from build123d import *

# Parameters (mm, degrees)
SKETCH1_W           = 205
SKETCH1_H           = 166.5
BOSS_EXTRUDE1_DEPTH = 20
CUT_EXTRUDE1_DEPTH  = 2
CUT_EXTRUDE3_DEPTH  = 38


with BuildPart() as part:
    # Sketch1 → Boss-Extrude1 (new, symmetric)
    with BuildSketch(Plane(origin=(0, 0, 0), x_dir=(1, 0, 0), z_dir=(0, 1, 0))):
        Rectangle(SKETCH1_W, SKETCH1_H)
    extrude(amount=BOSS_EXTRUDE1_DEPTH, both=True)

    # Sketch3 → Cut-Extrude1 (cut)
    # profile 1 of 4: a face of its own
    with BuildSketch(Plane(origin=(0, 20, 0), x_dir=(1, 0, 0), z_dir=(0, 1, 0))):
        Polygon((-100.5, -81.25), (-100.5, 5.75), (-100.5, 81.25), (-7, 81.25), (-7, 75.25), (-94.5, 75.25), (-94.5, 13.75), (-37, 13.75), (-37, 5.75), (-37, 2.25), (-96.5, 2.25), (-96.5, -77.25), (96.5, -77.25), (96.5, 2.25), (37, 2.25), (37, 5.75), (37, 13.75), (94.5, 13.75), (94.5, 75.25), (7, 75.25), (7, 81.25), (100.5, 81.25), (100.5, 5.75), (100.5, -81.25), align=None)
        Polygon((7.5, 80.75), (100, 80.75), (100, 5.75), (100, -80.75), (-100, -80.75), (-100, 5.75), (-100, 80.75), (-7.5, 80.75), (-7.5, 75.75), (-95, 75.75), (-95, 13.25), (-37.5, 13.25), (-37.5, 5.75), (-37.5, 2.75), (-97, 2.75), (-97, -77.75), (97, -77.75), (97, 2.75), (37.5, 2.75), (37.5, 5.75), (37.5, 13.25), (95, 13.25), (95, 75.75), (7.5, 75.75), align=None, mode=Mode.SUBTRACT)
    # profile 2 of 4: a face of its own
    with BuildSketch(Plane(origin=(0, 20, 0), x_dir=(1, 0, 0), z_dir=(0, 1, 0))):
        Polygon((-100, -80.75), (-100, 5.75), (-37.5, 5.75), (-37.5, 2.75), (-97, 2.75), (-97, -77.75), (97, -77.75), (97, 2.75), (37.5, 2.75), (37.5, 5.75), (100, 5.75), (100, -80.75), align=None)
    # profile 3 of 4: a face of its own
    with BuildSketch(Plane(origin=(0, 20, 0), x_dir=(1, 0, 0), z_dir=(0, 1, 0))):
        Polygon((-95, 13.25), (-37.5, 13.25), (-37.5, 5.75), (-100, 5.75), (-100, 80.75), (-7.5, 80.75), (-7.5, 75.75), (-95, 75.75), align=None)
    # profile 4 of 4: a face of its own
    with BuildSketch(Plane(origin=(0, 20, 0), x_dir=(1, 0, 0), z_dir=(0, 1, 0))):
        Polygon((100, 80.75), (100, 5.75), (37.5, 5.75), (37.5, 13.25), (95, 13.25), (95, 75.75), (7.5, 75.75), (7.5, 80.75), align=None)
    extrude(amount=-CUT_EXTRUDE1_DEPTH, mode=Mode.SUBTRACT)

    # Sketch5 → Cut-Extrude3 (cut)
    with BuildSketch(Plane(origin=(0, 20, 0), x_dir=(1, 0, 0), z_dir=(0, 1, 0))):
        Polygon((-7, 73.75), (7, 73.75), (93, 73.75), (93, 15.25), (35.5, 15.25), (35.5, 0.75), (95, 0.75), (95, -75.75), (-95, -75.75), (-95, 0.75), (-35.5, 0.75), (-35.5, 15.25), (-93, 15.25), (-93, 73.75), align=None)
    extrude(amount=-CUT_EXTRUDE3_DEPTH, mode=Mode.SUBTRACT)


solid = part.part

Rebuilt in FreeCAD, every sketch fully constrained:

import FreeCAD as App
import Part
import Sketcher


def add_polygon(sketch, points):
    """Adds a closed chain of lines whose ends are joined by coincident constraints."""
    first, n = sketch.GeometryCount, len(points)
    for a, b in zip(points, points[1:] + points[:1]):
        sketch.addGeometry(Part.LineSegment(App.Vector(*a, 0), App.Vector(*b, 0)), False)
    for i in range(n):
        sketch.addConstraint(Sketcher.Constraint("Coincident", first + i, 2, first + (i + 1) % n, 1))

doc = App.newDocument("Part")
body = doc.addObject("PartDesign::Body", "Body")

# Sketch on XZ plane
sketch1 = body.newObject("Sketcher::SketchObject", "Sketch")
sketch1.AttachmentSupport = (doc.getObject("XZ_Plane"), [""])
sketch1.MapMode = "FlatFace"
add_polygon(sketch1, [(-102, -83), (-102, 83), (102, 83), (102, -83)])  # lines 0-3
sketch1.addConstraint([
    Sketcher.Constraint("Vertical", 0),
    Sketcher.Constraint("Horizontal", 1),
    Sketcher.Constraint("Vertical", 2),
    Sketcher.Constraint("Horizontal", 3),
    Sketcher.Constraint("Symmetric", 0, 2, 2, 2, -1, 1),
    Sketcher.Constraint("DistanceX", 1, 1, 1, 2, 205.0),
    Sketcher.Constraint("DistanceY", 0, 1, 0, 2, 166.5),
])
pad1 = body.newObject("PartDesign::Pad", "Pad")
pad1.Profile = sketch1
pad1.Length = 40
pad1.Midplane = True

# Sketch on XZ plane
sketch2 = body.newObject("Sketcher::SketchObject", "Sketch001")
sketch2.AttachmentSupport = (doc.getObject("XZ_Plane"), [""])
sketch2.MapMode = "FlatFace"
sketch2.AttachmentOffset = App.Placement(App.Vector(0, 0, -20), App.Rotation())
add_polygon(sketch2, [(-100, -81), (-100, 81), (100, 81), (100, -81), (7, -81), (7, -75), (94, -75), (94, -14), (37, -14), (37, -2), (96, -2), (96, 77), (-96, 77), (-96, -2), (-37, -2), (-37, -14), (-94, -14), (-94, -75), (-7, -75), (-7, -81)])  # lines 0-19
sketch2.addConstraint([
    Sketcher.Constraint("Vertical", 0),
    Sketcher.Constraint("Horizontal", 1),
    Sketcher.Constraint("Vertical", 2),
    Sketcher.Constraint("Horizontal", 3),
    Sketcher.Constraint("Vertical", 4),
    Sketcher.Constraint("Horizontal", 5),
    Sketcher.Constraint("Vertical", 6),
    Sketcher.Constraint("Horizontal", 7),
    Sketcher.Constraint("Vertical", 8),
    Sketcher.Constraint("Horizontal", 9),
    Sketcher.Constraint("Vertical", 10),
    Sketcher.Constraint("Horizontal", 11),
    Sketcher.Constraint("Vertical", 12),
    Sketcher.Constraint("Horizontal", 13),
    Sketcher.Constraint("Vertical", 14),
    Sketcher.Constraint("Horizontal", 15),
    Sketcher.Constraint("Vertical", 16),
    Sketcher.Constraint("Horizontal", 17),
    Sketcher.Constraint("Vertical", 18),
    Sketcher.Constraint("Horizontal", 19),
    Sketcher.Constraint("Symmetric", 0, 2, 2, 2, -1, 1),
    Sketcher.Constraint("Symmetric", 9, 2, 12, 2, -2),
    Sketcher.Constraint("Symmetric", 7, 2, 14, 2, -2),
    Sketcher.Constraint("Symmetric", 5, 2, 16, 2, -2),
    Sketcher.Constraint("Symmetric", 3, 2, 18, 2, -2),
    Sketcher.Constraint("DistanceX", 1, 1, 1, 2, 201.0),
    Sketcher.Constraint("DistanceX", 11, 2, 11, 1, 193.0),
    Sketcher.Constraint("DistanceY", 4, 1, 4, 2, 6.0),
    Sketcher.Constraint("DistanceX", 3, 2, 3, 1, 93.5),
    Sketcher.Constraint("DistanceX", 5, 1, 5, 2, 87.5),
    Sketcher.Constraint("DistanceX", 7, 2, 7, 1, 57.5),
    Sketcher.Constraint("DistanceY", 0, 1, 0, 2, 162.5),
    Sketcher.Constraint("DistanceY", 6, 1, 6, 2, 61.5),
    Sketcher.Constraint("DistanceY", 8, 1, 8, 2, 11.5),
    Sketcher.Constraint("DistanceY", 10, 1, 10, 2, 79.5),
])
pocket1 = body.newObject("PartDesign::Pocket", "Pocket")
pocket1.Profile = sketch2
pocket1.Length = 2
pocket1.Reversed = True

# Sketch on XZ plane
sketch3 = body.newObject("Sketcher::SketchObject", "Sketch002")
sketch3.AttachmentSupport = (doc.getObject("XZ_Plane"), [""])
sketch3.MapMode = "FlatFace"
sketch3.AttachmentOffset = App.Placement(App.Vector(0, 0, -20), App.Rotation())
add_polygon(sketch3, [(93, -74), (-93, -74), (-93, -15), (-36, -15), (-36, -1), (-95, -1), (-95, 76), (95, 76), (95, -1), (36, -1), (36, -15), (93, -15)])  # lines 0-11
sketch3.addConstraint([
    Sketcher.Constraint("Horizontal", 0),
    Sketcher.Constraint("Vertical", 1),
    Sketcher.Constraint("Horizontal", 2),
    Sketcher.Constraint("Vertical", 3),
    Sketcher.Constraint("Horizontal", 4),
    Sketcher.Constraint("Vertical", 5),
    Sketcher.Constraint("Horizontal", 6),
    Sketcher.Constraint("Vertical", 7),
    Sketcher.Constraint("Horizontal", 8),
    Sketcher.Constraint("Vertical", 9),
    Sketcher.Constraint("Horizontal", 10),
    Sketcher.Constraint("Vertical", 11),
    Sketcher.Constraint("Symmetric", 4, 2, 7, 2, -2),
    Sketcher.Constraint("Symmetric", 2, 2, 9, 2, -2),
    Sketcher.Constraint("Equal", 2, 10),
    Sketcher.Constraint("DistanceX", 0, 2, 0, 1, 186.0),
    Sketcher.Constraint("DistanceX", 6, 1, 6, 2, 190.0),
    Sketcher.Constraint("DistanceX", 2, 1, 2, 2, 57.5),
    Sketcher.Constraint("DistanceY", 1, 1, 1, 2, 58.5),
    Sketcher.Constraint("DistanceY", 3, 1, 3, 2, 14.5),
    Sketcher.Constraint("DistanceY", 5, 1, 5, 2, 76.5),
    Sketcher.Constraint("DistanceY", 0, 2, -1, 1, 73.75),
])
pocket2 = body.newObject("PartDesign::Pocket", "Pocket001")
pocket2.Profile = sketch3
pocket2.Length = 38
pocket2.Reversed = True

doc.recompute()
